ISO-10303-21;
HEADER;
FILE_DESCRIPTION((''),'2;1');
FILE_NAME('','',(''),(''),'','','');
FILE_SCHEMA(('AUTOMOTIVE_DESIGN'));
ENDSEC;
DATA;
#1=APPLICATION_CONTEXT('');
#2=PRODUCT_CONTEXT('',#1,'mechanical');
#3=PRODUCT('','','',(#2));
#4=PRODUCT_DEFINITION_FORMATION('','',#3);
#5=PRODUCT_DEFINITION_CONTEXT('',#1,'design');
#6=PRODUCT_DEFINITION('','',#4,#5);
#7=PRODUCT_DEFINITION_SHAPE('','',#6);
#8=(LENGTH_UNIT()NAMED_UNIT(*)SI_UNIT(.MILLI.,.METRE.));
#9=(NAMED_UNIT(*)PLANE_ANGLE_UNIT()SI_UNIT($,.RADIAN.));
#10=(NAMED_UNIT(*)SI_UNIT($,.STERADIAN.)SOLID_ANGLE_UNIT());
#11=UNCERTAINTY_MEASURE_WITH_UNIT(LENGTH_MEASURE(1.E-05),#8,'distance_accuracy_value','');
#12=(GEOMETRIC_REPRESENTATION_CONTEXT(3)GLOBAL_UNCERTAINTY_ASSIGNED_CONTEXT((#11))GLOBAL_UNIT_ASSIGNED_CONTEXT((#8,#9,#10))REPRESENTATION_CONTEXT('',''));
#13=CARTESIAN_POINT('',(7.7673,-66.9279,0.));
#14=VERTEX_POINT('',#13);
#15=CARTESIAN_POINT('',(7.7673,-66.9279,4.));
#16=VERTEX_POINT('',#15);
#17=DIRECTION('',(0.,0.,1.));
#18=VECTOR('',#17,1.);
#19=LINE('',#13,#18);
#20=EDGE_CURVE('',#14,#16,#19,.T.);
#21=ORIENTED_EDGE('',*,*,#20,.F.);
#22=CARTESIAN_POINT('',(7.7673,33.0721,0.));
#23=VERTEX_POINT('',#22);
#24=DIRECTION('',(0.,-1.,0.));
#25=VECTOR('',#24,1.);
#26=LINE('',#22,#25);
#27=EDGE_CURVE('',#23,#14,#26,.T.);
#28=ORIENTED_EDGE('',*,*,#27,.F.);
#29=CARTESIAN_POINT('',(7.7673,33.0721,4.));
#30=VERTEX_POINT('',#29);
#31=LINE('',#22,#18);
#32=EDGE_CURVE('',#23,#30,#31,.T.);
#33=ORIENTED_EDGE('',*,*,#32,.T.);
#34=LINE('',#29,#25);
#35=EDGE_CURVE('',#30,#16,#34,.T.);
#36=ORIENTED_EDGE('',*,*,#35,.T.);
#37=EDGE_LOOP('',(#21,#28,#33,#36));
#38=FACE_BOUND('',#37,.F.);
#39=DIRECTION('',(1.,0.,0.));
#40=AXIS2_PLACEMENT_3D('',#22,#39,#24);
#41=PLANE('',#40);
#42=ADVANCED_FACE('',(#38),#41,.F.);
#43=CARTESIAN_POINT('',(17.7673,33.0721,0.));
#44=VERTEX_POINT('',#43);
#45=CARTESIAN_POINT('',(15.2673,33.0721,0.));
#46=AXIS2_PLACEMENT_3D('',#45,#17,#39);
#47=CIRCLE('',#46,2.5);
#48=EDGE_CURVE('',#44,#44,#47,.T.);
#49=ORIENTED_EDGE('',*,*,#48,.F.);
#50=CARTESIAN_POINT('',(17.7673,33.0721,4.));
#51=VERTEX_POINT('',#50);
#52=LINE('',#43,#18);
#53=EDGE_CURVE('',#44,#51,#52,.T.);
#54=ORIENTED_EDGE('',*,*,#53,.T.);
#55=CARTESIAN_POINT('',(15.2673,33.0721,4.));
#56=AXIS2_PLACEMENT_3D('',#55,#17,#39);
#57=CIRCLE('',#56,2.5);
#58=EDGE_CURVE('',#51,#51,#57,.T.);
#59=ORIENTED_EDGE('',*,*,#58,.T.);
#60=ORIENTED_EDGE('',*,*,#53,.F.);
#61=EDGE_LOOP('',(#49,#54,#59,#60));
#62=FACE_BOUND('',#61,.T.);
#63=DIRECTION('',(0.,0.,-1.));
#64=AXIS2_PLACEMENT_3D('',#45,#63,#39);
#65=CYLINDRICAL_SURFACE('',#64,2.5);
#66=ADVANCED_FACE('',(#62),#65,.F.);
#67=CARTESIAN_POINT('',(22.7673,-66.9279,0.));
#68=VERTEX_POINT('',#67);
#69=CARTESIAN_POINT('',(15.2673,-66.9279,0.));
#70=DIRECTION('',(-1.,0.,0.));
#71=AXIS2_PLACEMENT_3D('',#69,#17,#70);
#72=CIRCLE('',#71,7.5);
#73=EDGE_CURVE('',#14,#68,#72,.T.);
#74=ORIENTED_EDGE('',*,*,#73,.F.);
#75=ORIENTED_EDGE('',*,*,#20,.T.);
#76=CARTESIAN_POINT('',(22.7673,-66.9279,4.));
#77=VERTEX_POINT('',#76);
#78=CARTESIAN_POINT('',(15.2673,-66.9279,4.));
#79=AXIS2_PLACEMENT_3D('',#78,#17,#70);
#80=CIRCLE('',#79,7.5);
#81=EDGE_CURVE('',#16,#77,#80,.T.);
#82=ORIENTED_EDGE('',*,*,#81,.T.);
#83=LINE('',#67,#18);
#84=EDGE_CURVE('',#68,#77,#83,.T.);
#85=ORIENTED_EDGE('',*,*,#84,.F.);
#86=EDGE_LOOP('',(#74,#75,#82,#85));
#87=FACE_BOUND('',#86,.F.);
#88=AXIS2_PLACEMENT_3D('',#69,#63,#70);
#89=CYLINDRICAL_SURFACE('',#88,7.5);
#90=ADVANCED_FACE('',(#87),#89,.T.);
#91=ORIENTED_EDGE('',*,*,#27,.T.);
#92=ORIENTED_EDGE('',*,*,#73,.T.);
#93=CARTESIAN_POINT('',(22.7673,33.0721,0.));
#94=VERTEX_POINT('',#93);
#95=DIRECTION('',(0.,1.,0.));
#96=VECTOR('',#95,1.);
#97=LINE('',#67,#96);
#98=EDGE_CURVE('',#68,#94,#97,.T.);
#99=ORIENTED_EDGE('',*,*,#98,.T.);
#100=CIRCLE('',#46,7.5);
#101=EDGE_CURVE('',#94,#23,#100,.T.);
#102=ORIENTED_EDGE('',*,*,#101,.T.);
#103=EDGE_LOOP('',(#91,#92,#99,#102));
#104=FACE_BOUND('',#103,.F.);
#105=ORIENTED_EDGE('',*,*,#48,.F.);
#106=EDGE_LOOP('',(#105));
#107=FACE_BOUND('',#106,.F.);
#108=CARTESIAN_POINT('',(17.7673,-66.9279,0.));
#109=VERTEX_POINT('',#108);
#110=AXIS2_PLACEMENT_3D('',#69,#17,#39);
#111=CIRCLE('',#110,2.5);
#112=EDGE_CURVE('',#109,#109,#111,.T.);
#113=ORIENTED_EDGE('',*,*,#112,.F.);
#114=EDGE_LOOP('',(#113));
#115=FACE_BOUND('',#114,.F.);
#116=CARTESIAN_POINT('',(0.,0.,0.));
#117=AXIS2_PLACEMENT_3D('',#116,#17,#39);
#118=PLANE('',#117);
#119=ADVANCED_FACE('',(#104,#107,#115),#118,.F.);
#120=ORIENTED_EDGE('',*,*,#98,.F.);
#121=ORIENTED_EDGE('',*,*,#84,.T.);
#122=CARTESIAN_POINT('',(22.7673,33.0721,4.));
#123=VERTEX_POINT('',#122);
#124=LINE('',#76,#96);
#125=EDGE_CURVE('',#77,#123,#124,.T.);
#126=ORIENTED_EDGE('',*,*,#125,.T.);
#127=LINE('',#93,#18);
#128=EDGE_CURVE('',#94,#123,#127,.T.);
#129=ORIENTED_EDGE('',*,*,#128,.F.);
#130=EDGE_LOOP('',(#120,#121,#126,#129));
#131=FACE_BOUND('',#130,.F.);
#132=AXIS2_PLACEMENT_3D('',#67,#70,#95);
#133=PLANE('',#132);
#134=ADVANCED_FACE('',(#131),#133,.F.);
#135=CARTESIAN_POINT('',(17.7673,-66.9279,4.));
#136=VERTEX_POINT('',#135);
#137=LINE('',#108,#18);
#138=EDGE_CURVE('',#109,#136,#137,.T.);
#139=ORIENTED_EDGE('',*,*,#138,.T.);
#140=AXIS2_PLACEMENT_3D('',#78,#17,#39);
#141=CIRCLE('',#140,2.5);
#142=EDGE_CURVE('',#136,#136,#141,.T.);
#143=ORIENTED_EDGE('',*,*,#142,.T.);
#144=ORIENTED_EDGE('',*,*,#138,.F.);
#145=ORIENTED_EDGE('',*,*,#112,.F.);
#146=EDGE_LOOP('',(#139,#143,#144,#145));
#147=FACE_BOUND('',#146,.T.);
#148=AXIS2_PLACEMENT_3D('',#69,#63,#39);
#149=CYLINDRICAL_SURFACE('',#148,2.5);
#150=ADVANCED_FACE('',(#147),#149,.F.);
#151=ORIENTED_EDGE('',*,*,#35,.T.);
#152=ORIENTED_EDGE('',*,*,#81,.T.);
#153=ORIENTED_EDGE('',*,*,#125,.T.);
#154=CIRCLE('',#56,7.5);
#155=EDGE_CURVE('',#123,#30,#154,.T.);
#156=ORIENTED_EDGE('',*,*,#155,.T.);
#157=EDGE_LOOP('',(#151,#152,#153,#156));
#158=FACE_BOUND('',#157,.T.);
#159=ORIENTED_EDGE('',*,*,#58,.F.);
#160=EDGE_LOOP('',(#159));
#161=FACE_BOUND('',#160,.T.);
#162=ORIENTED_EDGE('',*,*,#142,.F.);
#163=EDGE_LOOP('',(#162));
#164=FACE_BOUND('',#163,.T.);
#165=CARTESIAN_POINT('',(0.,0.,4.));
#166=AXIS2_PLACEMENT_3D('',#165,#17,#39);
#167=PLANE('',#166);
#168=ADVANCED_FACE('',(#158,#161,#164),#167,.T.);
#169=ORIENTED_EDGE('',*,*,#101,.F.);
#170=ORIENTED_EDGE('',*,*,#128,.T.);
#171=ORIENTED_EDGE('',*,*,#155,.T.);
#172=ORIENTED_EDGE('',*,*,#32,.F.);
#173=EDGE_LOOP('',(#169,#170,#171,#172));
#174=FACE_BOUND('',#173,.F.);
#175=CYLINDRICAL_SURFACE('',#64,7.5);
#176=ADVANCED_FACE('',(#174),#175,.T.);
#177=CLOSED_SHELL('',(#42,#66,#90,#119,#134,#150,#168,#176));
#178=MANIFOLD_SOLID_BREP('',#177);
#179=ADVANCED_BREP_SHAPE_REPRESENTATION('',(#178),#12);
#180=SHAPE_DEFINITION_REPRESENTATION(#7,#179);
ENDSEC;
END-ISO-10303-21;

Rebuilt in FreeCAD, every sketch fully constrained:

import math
import FreeCAD as App
import Part
import Sketcher
from FreeCAD import Vector

doc = App.newDocument("Part")
body = doc.addObject("PartDesign::Body", "Body")

# Sketch on XY plane
sketch1 = body.newObject("Sketcher::SketchObject", "Sketch")
sketch1.AttachmentSupport = (doc.getObject("XY_Plane"), [""])
sketch1.MapMode = "FlatFace"
sketch1.addGeometry([
    Part.ArcOfCircle(Part.Circle(Vector(15.3, 33.1, 0), Vector(0, 0, 1), 7.5), math.radians(0), math.radians(180)),  # 0
    Part.LineSegment(Vector(7.8, 33.1, 0), Vector(7.8, -66.9, 0)),  # 1
    Part.ArcOfCircle(Part.Circle(Vector(15.3, -66.9, 0), Vector(0, 0, 1), 7.5), math.radians(180), math.radians(360)),  # 2
    Part.LineSegment(Vector(22.8, -66.9, 0), Vector(22.8, 33.1, 0)),  # 3
    Part.Circle(Vector(15.3, -66.9, 0), Vector(0, 0, 1), 2.5),  # 4
    Part.Circle(Vector(15.3, 33.1, 0), Vector(0, 0, 1), 2.5),  # 5
], False)
sketch1.addConstraint([
    Sketcher.Constraint("Tangent", 0, 2, 1, 1),
    Sketcher.Constraint("Tangent", 1, 2, 2, 1),
    Sketcher.Constraint("Tangent", 2, 2, 3, 1),
    Sketcher.Constraint("Tangent", 3, 2, 0, 1),
    Sketcher.Constraint("Vertical", 1),
    Sketcher.Constraint("Vertical", 3),
    Sketcher.Constraint("Coincident", 4, 3, 2, 3),
    Sketcher.Constraint("Coincident", 5, 3, 0, 3),
    Sketcher.Constraint("Equal", 4, 5),
    Sketcher.Constraint("Diameter", 4, 5.0),
    Sketcher.Constraint("Radius", 0, 7.5),
    Sketcher.Constraint("DistanceY", 1, 2, 1, 1, 100.0),
    Sketcher.Constraint("DistanceY", -1, 1, 0, 3, 33.072),
    Sketcher.Constraint("DistanceX", -1, 1, 0, 3, 15.2673),
])
pad1 = body.newObject("PartDesign::Pad", "Pad")
pad1.Profile = sketch1
pad1.Length = 4

doc.recompute()
